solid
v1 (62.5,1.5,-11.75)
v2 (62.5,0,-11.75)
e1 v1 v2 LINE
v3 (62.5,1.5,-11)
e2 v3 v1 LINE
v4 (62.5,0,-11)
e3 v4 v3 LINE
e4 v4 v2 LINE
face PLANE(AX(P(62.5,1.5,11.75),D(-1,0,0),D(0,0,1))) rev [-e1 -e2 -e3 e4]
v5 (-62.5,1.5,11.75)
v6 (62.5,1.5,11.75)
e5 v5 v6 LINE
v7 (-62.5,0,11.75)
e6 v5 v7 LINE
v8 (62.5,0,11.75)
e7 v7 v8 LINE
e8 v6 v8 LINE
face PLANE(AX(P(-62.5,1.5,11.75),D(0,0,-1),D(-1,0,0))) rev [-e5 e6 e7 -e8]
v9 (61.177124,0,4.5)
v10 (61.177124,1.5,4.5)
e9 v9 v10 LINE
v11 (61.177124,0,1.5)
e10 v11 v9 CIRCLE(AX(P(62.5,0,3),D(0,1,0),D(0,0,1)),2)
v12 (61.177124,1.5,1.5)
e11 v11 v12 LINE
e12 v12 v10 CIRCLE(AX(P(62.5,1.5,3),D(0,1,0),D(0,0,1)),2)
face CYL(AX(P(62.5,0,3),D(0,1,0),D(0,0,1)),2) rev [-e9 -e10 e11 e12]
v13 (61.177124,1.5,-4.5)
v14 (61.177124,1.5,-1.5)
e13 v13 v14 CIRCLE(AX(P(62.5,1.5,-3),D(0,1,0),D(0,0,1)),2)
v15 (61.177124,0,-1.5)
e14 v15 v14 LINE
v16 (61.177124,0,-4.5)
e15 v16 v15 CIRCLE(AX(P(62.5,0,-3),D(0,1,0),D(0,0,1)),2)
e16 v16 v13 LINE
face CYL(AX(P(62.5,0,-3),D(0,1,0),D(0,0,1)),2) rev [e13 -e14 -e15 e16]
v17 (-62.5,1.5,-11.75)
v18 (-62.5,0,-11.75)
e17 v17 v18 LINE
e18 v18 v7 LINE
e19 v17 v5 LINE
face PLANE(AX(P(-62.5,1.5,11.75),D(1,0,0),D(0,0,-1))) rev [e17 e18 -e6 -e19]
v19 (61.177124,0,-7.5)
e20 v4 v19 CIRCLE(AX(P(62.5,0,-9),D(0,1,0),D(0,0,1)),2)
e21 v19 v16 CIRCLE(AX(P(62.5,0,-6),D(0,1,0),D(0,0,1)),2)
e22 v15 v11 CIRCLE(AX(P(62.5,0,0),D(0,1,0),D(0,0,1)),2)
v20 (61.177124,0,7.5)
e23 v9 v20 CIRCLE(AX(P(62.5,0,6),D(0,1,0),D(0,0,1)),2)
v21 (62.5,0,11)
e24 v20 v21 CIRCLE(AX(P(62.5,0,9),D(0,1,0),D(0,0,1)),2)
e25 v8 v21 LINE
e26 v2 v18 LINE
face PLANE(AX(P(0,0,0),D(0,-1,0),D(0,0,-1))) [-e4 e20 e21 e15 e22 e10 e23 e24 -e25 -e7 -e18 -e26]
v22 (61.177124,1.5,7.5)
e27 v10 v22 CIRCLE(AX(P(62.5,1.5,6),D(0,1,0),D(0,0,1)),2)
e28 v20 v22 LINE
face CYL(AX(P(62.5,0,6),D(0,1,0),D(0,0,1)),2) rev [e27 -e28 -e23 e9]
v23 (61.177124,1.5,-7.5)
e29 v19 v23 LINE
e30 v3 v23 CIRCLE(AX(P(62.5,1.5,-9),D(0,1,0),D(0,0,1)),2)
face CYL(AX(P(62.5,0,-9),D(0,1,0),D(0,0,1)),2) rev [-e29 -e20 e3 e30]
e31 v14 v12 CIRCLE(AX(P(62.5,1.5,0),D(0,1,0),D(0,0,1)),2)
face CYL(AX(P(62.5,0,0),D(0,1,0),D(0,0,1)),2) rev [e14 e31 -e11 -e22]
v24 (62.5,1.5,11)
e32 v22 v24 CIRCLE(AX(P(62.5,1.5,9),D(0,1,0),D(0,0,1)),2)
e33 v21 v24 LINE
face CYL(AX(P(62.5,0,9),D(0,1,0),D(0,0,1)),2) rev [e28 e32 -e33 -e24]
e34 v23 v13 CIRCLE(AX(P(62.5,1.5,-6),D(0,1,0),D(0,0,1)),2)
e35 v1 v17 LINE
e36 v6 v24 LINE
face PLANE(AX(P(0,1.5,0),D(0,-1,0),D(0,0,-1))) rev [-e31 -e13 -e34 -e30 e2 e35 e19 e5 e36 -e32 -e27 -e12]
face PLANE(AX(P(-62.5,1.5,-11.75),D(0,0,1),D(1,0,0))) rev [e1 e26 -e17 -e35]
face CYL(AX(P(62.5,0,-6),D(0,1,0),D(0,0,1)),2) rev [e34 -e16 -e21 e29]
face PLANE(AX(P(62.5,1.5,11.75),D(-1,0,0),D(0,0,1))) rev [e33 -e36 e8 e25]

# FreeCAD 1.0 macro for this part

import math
import FreeCAD as App
import Part
import Sketcher
Q = App.Units.Quantity

doc = App.newDocument("Part")
body = doc.addObject("PartDesign::Body", "Body")

# Sketch on XZ plane
sketch1 = doc.addObject("Sketcher::SketchObject", "Sketch")
body.addObject(sketch1)
sketch1.AttachmentSupport = (doc.XZ_Plane, [""])
sketch1.MapMode = "FlatFace"
sketch1.addGeometry([
    Part.LineSegment(App.Vector(-62, -12, 0), App.Vector(-62, 12, 0)),
    Part.LineSegment(App.Vector(-62, 12, 0), App.Vector(62, 12, 0)),
    Part.LineSegment(App.Vector(62, 12, 0), App.Vector(62, -12, 0)),
    Part.LineSegment(App.Vector(62, -12, 0), App.Vector(-62, -12, 0)),
], False)
sketch1.addConstraint([
    Sketcher.Constraint("Coincident", 0, 2, 1, 1),
    Sketcher.Constraint("Coincident", 1, 2, 2, 1),
    Sketcher.Constraint("Coincident", 2, 2, 3, 1),
    Sketcher.Constraint("Coincident", 3, 2, 0, 1),
    Sketcher.Constraint("Vertical", 0),
    Sketcher.Constraint("Horizontal", 1),
    Sketcher.Constraint("Vertical", 2),
    Sketcher.Constraint("Horizontal", 3),
    Sketcher.Constraint("Symmetric", 0, 2, 2, 2, -1, 1),
    Sketcher.Constraint("DistanceX", 1, 1, 1, 2, Q("125 mm")),
    Sketcher.Constraint("DistanceY", 0, 1, 0, 2, Q("23.5 mm")),
])
pad1 = doc.addObject("PartDesign::Pad", "Pad")
body.addObject(pad1)
pad1.Profile = sketch1
pad1.Length = 1.5
pad1.Reversed = True

# Sketch on XZ plane
sketch2 = doc.addObject("Sketcher::SketchObject", "Sketch001")
body.addObject(sketch2)
sketch2.AttachmentSupport = (doc.XZ_Plane, [""])
sketch2.MapMode = "FlatFace"
sketch2.AttachmentOffset = App.Placement(App.Vector(0, 0, -1.5), App.Rotation())
sketch2.addGeometry([
    Part.ArcOfCircle(Part.Circle(App.Vector(62.5, -3, 0), App.Vector(0, 0, 1), 2), math.radians(-49), math.radians(0)),  # 0
    Part.ArcOfCircle(Part.Circle(App.Vector(62.5, -6, 0), App.Vector(0, 0, 1), 2), math.radians(0), math.radians(49)),  # 1
    Part.ArcOfCircle(Part.Circle(App.Vector(62.5, -6, 0), App.Vector(0, 0, 1), 2), math.radians(-49), math.radians(0)),  # 2
    Part.ArcOfCircle(Part.Circle(App.Vector(62.5, -9, 0), App.Vector(0, 0, 1), 2), math.radians(0), math.radians(49)),  # 3
    Part.ArcOfCircle(Part.Circle(App.Vector(62.5, -9, 0), App.Vector(0, 0, 1), 2), math.radians(-90), math.radians(0)),  # 4
    Part.ArcOfCircle(Part.Circle(App.Vector(62.5, -9, 0), App.Vector(0, 0, 1), 2), math.radians(131), math.radians(270)),  # 5
    Part.ArcOfCircle(Part.Circle(App.Vector(62.5, -6, 0), App.Vector(0, 0, 1), 2), math.radians(131), math.radians(229)),  # 6
    Part.ArcOfCircle(Part.Circle(App.Vector(62.5, -3, 0), App.Vector(0, 0, 1), 2), math.radians(131), math.radians(229)),  # 7
    Part.ArcOfCircle(Part.Circle(App.Vector(62.5, 0, 0), App.Vector(0, 0, 1), 2), math.radians(131), math.radians(229)),  # 8
    Part.ArcOfCircle(Part.Circle(App.Vector(62.5, 3, 0), App.Vector(0, 0, 1), 2), math.radians(131), math.radians(229)),  # 9
    Part.ArcOfCircle(Part.Circle(App.Vector(62.5, 6, 0), App.Vector(0, 0, 1), 2), math.radians(131), math.radians(229)),  # 10
    Part.ArcOfCircle(Part.Circle(App.Vector(62.5, 9, 0), App.Vector(0, 0, 1), 2), math.radians(90), math.radians(229)),  # 11
    Part.ArcOfCircle(Part.Circle(App.Vector(62.5, 9, 0), App.Vector(0, 0, 1), 2), math.radians(0), math.radians(90)),  # 12
    Part.ArcOfCircle(Part.Circle(App.Vector(62.5, 9, 0), App.Vector(0, 0, 1), 2), math.radians(-49), math.radians(0)),  # 13
    Part.ArcOfCircle(Part.Circle(App.Vector(62.5, 6, 0), App.Vector(0, 0, 1), 2), math.radians(0), math.radians(49)),  # 14
    Part.ArcOfCircle(Part.Circle(App.Vector(62.5, 6, 0), App.Vector(0, 0, 1), 2), math.radians(-49), math.radians(0)),  # 15
    Part.ArcOfCircle(Part.Circle(App.Vector(62.5, 3, 0), App.Vector(0, 0, 1), 2), math.radians(0), math.radians(49)),  # 16
    Part.ArcOfCircle(Part.Circle(App.Vector(62.5, 3, 0), App.Vector(0, 0, 1), 2), math.radians(-49), math.radians(0)),  # 17
    Part.ArcOfCircle(Part.Circle(App.Vector(62.5, 0, 0), App.Vector(0, 0, 1), 2), math.radians(0), math.radians(49)),  # 18
    Part.ArcOfCircle(Part.Circle(App.Vector(62.5, 0, 0), App.Vector(0, 0, 1), 2), math.radians(-49), math.radians(0)),  # 19
    Part.ArcOfCircle(Part.Circle(App.Vector(62.5, -3, 0), App.Vector(0, 0, 1), 2), math.radians(0), math.radians(49)),  # 20
], False)
sketch2.addConstraint([
    Sketcher.Constraint("Coincident", 0, 1, 1, 2),
    Sketcher.Constraint("Tangent", 1, 1, 2, 2),
    Sketcher.Constraint("Coincident", 2, 1, 3, 2),
    Sketcher.Constraint("Tangent", 3, 1, 4, 2),
    Sketcher.Constraint("Tangent", 4, 1, 5, 2),
    Sketcher.Constraint("Coincident", 5, 1, 6, 2),
    Sketcher.Constraint("Coincident", 6, 1, 7, 2),
    Sketcher.Constraint("Coincident", 7, 1, 8, 2),
    Sketcher.Constraint("Coincident", 8, 1, 9, 2),
    Sketcher.Constraint("Coincident", 9, 1, 10, 2),
    Sketcher.Constraint("Coincident", 10, 1, 11, 2),
    Sketcher.Constraint("Tangent", 11, 1, 12, 2),
    Sketcher.Constraint("Tangent", 12, 1, 13, 2),
    Sketcher.Constraint("Coincident", 13, 1, 14, 2),
    Sketcher.Constraint("Tangent", 14, 1, 15, 2),
    Sketcher.Constraint("Coincident", 15, 1, 16, 2),
    Sketcher.Constraint("Tangent", 16, 1, 17, 2),
    Sketcher.Constraint("Coincident", 17, 1, 18, 2),
    Sketcher.Constraint("Tangent", 18, 1, 19, 2),
    Sketcher.Constraint("Coincident", 19, 1, 20, 2),
    Sketcher.Constraint("Tangent", 20, 1, 0, 2),
    Sketcher.Constraint("Coincident", 5, 3, 3, 3),
    Sketcher.Constraint("Coincident", 6, 3, 1, 3),
    Sketcher.Constraint("Coincident", 7, 3, 0, 3),
    Sketcher.Constraint("Coincident", 13, 3, 11, 3),
    Sketcher.Constraint("Coincident", 14, 3, 10, 3),
    Sketcher.Constraint("Coincident", 16, 3, 9, 3),
    Sketcher.Constraint("Coincident", 18, 3, 8, 3),
    Sketcher.Constraint("Equal", 0, 1),
    Sketcher.Constraint("Equal", 1, 2),
    Sketcher.Constraint("Equal", 2, 3),
    Sketcher.Constraint("Equal", 5, 6),
    Sketcher.Constraint("Equal", 6, 7),
    Sketcher.Constraint("Equal", 7, 8),
    Sketcher.Constraint("Equal", 8, 9),
    Sketcher.Constraint("Equal", 9, 10),
    Sketcher.Constraint("Equal", 10, 11),
    Sketcher.Constraint("Equal", 13, 14),
    Sketcher.Constraint("Equal", 14, 15),
    Sketcher.Constraint("Equal", 15, 16),
    Sketcher.Constraint("Equal", 16, 17),
    Sketcher.Constraint("Equal", 17, 18),
    Sketcher.Constraint("Equal", 18, 19),
    Sketcher.Constraint("Equal", 19, 20),
    Sketcher.Constraint("Symmetric", 0, 3, 9, 3, -1),
    Sketcher.Constraint("Symmetric", 1, 3, 10, 3, -1),
    Sketcher.Constraint("Symmetric", 3, 3, 11, 3, -1),
    Sketcher.Constraint("PointOnObject", 8, 3, -1),
    Sketcher.Constraint("PointOnObject", 18, 1, -1),
    Sketcher.Constraint("Horizontal", 6, 3, 1, 1),
    Sketcher.Constraint("Horizontal", 5, 3, 3, 1),
    Sketcher.Constraint("Horizontal", 2, 1, 5, 1),
    Sketcher.Constraint("Horizontal", 0, 1, 6, 1),
    Sketcher.Constraint("Horizontal", 13, 3, 12, 1),
    Sketcher.Constraint("Horizontal", 15, 3, 14, 1),
    Sketcher.Constraint("Horizontal", 17, 3, 16, 1),
    Sketcher.Constraint("Horizontal", 8, 1, 17, 1),
    Sketcher.Constraint("Horizontal", 7, 3, 20, 1),
    Sketcher.Constraint("Vertical", 0, 1, 2, 1),
    Sketcher.Constraint("Vertical", 20, 3, 4, 1),
    Sketcher.Constraint("Vertical", 6, 1, 7, 1),
    Sketcher.Constraint("Vertical", 4, 1, 11, 1),
    Sketcher.Constraint("Radius", 0, Q("2 mm")),
    Sketcher.Constraint("DistanceY", 0, 3, -1, 1, Q("3 mm")),
    Sketcher.Constraint("DistanceX", -1, 1, 0, 3, Q("62.5 mm")),
])
pocket1 = doc.addObject("PartDesign::Pocket", "Pocket")
body.addObject(pocket1)
pocket1.Profile = sketch2
pocket1.Type = "ThroughAll"
pocket1.Reversed = True

doc.recompute()
